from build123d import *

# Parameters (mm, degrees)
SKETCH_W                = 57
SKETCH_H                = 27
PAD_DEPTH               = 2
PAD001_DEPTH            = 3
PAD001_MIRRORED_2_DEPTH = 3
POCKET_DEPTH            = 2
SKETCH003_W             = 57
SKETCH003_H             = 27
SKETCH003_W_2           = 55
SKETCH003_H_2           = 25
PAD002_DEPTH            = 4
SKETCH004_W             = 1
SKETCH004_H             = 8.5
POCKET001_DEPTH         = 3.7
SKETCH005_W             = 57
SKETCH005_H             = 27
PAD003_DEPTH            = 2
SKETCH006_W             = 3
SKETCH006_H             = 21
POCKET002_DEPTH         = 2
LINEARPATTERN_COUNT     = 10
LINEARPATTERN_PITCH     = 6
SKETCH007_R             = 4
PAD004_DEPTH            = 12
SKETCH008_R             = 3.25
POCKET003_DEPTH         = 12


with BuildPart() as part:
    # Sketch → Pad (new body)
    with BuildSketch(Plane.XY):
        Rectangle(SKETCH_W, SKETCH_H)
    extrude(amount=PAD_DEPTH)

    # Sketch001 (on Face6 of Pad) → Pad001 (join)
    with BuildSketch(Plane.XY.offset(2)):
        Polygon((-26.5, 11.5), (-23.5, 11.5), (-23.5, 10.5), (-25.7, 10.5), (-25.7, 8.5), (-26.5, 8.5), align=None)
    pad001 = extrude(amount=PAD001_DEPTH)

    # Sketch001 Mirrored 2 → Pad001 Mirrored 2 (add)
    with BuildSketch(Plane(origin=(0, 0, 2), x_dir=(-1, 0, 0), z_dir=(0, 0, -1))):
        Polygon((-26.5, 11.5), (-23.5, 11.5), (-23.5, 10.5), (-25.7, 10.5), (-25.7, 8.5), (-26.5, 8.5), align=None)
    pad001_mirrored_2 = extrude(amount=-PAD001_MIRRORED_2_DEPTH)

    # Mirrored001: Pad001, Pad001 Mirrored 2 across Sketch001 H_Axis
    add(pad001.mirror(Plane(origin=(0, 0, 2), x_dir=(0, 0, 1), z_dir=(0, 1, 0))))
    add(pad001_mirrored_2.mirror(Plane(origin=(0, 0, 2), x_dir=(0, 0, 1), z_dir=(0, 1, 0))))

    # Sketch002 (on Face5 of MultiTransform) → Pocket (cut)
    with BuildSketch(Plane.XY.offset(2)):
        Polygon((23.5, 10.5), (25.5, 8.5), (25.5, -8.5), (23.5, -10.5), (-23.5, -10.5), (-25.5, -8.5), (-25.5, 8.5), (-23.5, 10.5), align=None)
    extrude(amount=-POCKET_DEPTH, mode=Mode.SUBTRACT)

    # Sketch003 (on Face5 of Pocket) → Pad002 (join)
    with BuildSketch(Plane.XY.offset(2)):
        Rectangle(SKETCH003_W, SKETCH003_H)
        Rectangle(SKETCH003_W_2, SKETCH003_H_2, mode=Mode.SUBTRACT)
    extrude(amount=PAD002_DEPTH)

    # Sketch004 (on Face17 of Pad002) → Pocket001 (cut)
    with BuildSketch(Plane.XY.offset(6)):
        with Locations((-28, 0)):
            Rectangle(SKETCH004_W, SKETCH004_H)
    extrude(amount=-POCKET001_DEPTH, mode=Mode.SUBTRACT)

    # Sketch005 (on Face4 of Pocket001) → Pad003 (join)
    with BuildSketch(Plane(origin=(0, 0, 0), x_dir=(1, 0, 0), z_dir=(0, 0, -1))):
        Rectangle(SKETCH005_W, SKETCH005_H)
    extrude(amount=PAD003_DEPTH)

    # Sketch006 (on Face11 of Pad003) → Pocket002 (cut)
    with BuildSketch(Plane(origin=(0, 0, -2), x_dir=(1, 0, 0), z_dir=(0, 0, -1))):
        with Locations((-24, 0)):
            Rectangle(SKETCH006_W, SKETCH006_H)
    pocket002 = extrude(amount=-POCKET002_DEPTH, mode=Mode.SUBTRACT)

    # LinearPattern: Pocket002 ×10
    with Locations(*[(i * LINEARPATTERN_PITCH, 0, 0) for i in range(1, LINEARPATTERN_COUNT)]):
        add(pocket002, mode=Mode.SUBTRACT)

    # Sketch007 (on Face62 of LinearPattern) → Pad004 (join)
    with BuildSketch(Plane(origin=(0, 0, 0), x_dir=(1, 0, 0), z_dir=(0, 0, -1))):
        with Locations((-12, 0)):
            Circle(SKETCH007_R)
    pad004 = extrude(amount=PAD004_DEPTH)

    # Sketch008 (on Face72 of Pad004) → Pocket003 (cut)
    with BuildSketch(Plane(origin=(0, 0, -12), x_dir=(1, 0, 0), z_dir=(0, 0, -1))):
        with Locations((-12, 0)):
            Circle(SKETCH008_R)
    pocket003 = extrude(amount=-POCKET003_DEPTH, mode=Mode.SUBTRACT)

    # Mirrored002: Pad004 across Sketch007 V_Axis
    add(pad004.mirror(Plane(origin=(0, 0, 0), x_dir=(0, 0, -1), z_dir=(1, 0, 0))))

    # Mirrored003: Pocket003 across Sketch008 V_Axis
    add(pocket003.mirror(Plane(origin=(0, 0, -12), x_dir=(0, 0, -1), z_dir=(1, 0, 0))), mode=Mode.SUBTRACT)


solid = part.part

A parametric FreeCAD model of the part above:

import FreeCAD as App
import Part
import Sketcher

V = App.Vector
Q = App.Units.Quantity


def add_polygon(sketch, points):
    """Adds a closed chain of lines whose ends are joined by coincident constraints."""
    first, n = sketch.GeometryCount, len(points)
    for a, b in zip(points, points[1:] + points[:1]):
        sketch.addGeometry(Part.LineSegment(App.Vector(*a, 0), App.Vector(*b, 0)), False)
    for i in range(n):
        sketch.addConstraint(Sketcher.Constraint("Coincident", first + i, 2, first + (i + 1) % n, 1))

doc = App.newDocument("Part")
body = doc.addObject("PartDesign::Body", "Body")

# Sketch on XY plane
sketch1 = doc.addObject("Sketcher::SketchObject", "Sketch")
body.addObject(sketch1)
sketch1.AttachmentSupport = (doc.XY_Plane, [""])
sketch1.MapMode = "FlatFace"
add_polygon(sketch1, [(-28, 14), (-28, -14), (28, -14), (28, 14)])  # lines 0-3
sketch1.addConstraint(Sketcher.Constraint("Vertical", 0))
sketch1.addConstraint(Sketcher.Constraint("Horizontal", 1))
sketch1.addConstraint(Sketcher.Constraint("Vertical", 2))
sketch1.addConstraint(Sketcher.Constraint("Horizontal", 3))
sketch1.addConstraint(Sketcher.Constraint("Symmetric", 0, 2, 2, 2, -1, 1))
sketch1.addConstraint(Sketcher.Constraint("DistanceX", 1, 1, 1, 2, Q("57 mm")))
sketch1.addConstraint(Sketcher.Constraint("DistanceY", 0, 2, 0, 1, Q("27 mm")))
pad1 = doc.addObject("PartDesign::Pad", "Pad")
body.addObject(pad1)
pad1.Profile = sketch1
pad1.Length = 2

# Sketch on XY plane
sketch2 = doc.addObject("Sketcher::SketchObject", "Sketch001")
body.addObject(sketch2)
sketch2.AttachmentSupport = (doc.XY_Plane, [""])
sketch2.MapMode = "FlatFace"
sketch2.AttachmentOffset = App.Placement(V(0, 0, 2), App.Rotation())
add_polygon(sketch2, [(-23.5, 11.5), (-26.5, 11.5), (-26.5, 8.5), (-25.7, 8.5), (-25.7, 10.5), (-23.5, 10.5)])  # lines 0-5
sketch2.addConstraint(Sketcher.Constraint("Horizontal", 0))
sketch2.addConstraint(Sketcher.Constraint("Vertical", 1))
sketch2.addConstraint(Sketcher.Constraint("Horizontal", 2))
sketch2.addConstraint(Sketcher.Constraint("Vertical", 3))
sketch2.addConstraint(Sketcher.Constraint("Horizontal", 4))
sketch2.addConstraint(Sketcher.Constraint("Vertical", 5))
sketch2.addConstraint(Sketcher.Constraint("Equal", 0, 1))
sketch2.addConstraint(Sketcher.Constraint("DistanceX", 0, 2, 0, 1, Q("3 mm")))
sketch2.addConstraint(Sketcher.Constraint("DistanceY", 3, 1, 3, 2, Q("2 mm")))
sketch2.addConstraint(Sketcher.Constraint("DistanceX", 2, 1, 2, 2, Q("0.8 mm")))
sketch2.addConstraint(Sketcher.Constraint("DistanceX", 0, 2, -1, 1, Q("26.5 mm")))
sketch2.addConstraint(Sketcher.Constraint("DistanceY", -1, 1, 0, 2, Q("11.5 mm")))
pad2 = doc.addObject("PartDesign::Pad", "Pad001")
body.addObject(pad2)
pad2.Profile = sketch2
pad2.Length = 3

# Sketch on XY plane
sketch3 = doc.addObject("Sketcher::SketchObject", "Sketch002")
body.addObject(sketch3)
sketch3.AttachmentSupport = (doc.XY_Plane, [""])
sketch3.MapMode = "FlatFace"
sketch3.AttachmentOffset = App.Placement(V(0, 0, 2), App.Rotation())
add_polygon(sketch3, [(23.5, 11.5), (26.5, 11.5), (26.5, 8.5), (25.7, 8.5), (25.7, 10.5), (23.5, 10.5)])  # lines 0-5
sketch3.addConstraint(Sketcher.Constraint("Horizontal", 0))
sketch3.addConstraint(Sketcher.Constraint("Vertical", 1))
sketch3.addConstraint(Sketcher.Constraint("Horizontal", 2))
sketch3.addConstraint(Sketcher.Constraint("Vertical", 3))
sketch3.addConstraint(Sketcher.Constraint("Horizontal", 4))
sketch3.addConstraint(Sketcher.Constraint("Vertical", 5))
sketch3.addConstraint(Sketcher.Constraint("Equal", 0, 1))
sketch3.addConstraint(Sketcher.Constraint("DistanceX", 0, 1, 0, 2, Q("3 mm")))
sketch3.addConstraint(Sketcher.Constraint("DistanceY", 3, 1, 3, 2, Q("2 mm")))
sketch3.addConstraint(Sketcher.Constraint("DistanceX", 2, 2, 2, 1, Q("0.8 mm")))
sketch3.addConstraint(Sketcher.Constraint("DistanceX", -1, 1, 0, 2, Q("26.5 mm")))
sketch3.addConstraint(Sketcher.Constraint("DistanceY", -1, 1, 0, 2, Q("11.5 mm")))
pad3 = doc.addObject("PartDesign::Pad", "Pad002")
body.addObject(pad3)
pad3.Profile = sketch3
pad3.Length = 3
doc.recompute()

mirrored = doc.addObject("PartDesign::Mirrored", "Mirrored")
body.addObject(mirrored)
mirrored.Originals = [pad2, pad3]
mirrored.MirrorPlane = (doc.XZ_Plane, [""])
body.Tip = mirrored

# Sketch on XY plane
sketch4 = doc.addObject("Sketcher::SketchObject", "Sketch003")
body.addObject(sketch4)
sketch4.AttachmentSupport = (doc.XY_Plane, [""])
sketch4.MapMode = "FlatFace"
sketch4.AttachmentOffset = App.Placement(V(0, 0, 2), App.Rotation())
add_polygon(sketch4, [(25.5, 8.5), (23.5, 10.5), (-23.5, 10.5), (-25.5, 8.5), (-25.5, -8.5), (-23.5, -10.5), (23.5, -10.5), (25.5, -8.5)])  # lines 0-7
sketch4.addConstraint(Sketcher.Constraint("Horizontal", 1))
sketch4.addConstraint(Sketcher.Constraint("Vertical", 3))
sketch4.addConstraint(Sketcher.Constraint("Horizontal", 5))
sketch4.addConstraint(Sketcher.Constraint("Vertical", 7))
sketch4.addConstraint(Sketcher.Constraint("Symmetric", 0, 2, 4, 2, -1, 1))
sketch4.addConstraint(Sketcher.Constraint("Symmetric", 2, 2, 6, 2, -1, 1))
sketch4.addConstraint(Sketcher.Constraint("Perpendicular", 0, 2))
sketch4.addConstraint(Sketcher.Constraint("Perpendicular", 2, 4))
sketch4.addConstraint(Sketcher.Constraint("Perpendicular", 4, 6))
sketch4.addConstraint(Sketcher.Constraint("Horizontal", 3, 2, 6, 2))
sketch4.addConstraint(Sketcher.Constraint("Vertical", 1, 2, 4, 2))
sketch4.addConstraint(Sketcher.Constraint("DistanceX", 1, 2, 1, 1, Q("47 mm")))
sketch4.addConstraint(Sketcher.Constraint("DistanceY", 3, 2, 3, 1, Q("17 mm")))
sketch4.addConstraint(Sketcher.Constraint("DistanceX", 2, 2, 1, 2, Q("2 mm")))
pocket1 = doc.addObject("PartDesign::Pocket", "Pocket")
body.addObject(pocket1)
pocket1.Profile = sketch4
pocket1.Length = 2

# Sketch on XY plane
sketch5 = doc.addObject("Sketcher::SketchObject", "Sketch004")
body.addObject(sketch5)
sketch5.AttachmentSupport = (doc.XY_Plane, [""])
sketch5.MapMode = "FlatFace"
sketch5.AttachmentOffset = App.Placement(V(0, 0, 2), App.Rotation())
add_polygon(sketch5, [(-28, 14), (-28, -14), (28, -14), (28, 14)])  # lines 0-3
add_polygon(sketch5, [(28, -12), (-28, -12), (-28, 12), (28, 12)])  # lines 4-7
sketch5.addConstraint(Sketcher.Constraint("Vertical", 0))
sketch5.addConstraint(Sketcher.Constraint("Horizontal", 1))
sketch5.addConstraint(Sketcher.Constraint("Vertical", 2))
sketch5.addConstraint(Sketcher.Constraint("Horizontal", 3))
sketch5.addConstraint(Sketcher.Constraint("Horizontal", 4))
sketch5.addConstraint(Sketcher.Constraint("Vertical", 5))
sketch5.addConstraint(Sketcher.Constraint("Horizontal", 6))
sketch5.addConstraint(Sketcher.Constraint("Vertical", 7))
sketch5.addConstraint(Sketcher.Constraint("Symmetric", 0, 2, 2, 2, -1, 1))
sketch5.addConstraint(Sketcher.Constraint("Symmetric", 4, 2, 6, 2, -1, 1))
sketch5.addConstraint(Sketcher.Constraint("DistanceX", 1, 1, 1, 2, Q("57 mm")))
sketch5.addConstraint(Sketcher.Constraint("DistanceX", 4, 2, 4, 1, Q("55 mm")))
sketch5.addConstraint(Sketcher.Constraint("DistanceY", 0, 2, 0, 1, Q("27 mm")))
sketch5.addConstraint(Sketcher.Constraint("DistanceY", 5, 1, 5, 2, Q("25 mm")))
pad4 = doc.addObject("PartDesign::Pad", "Pad003")
body.addObject(pad4)
pad4.Profile = sketch5
pad4.Length = 4

# Sketch on XY plane
sketch6 = doc.addObject("Sketcher::SketchObject", "Sketch005")
body.addObject(sketch6)
sketch6.AttachmentSupport = (doc.XY_Plane, [""])
sketch6.MapMode = "FlatFace"
sketch6.AttachmentOffset = App.Placement(V(0, 0, 6), App.Rotation())
add_polygon(sketch6, [(-28.5, 4.2), (-28.5, -4.2), (-27.5, -4.2), (-27.5, 4.2)])  # lines 0-3
sketch6.addConstraint(Sketcher.Constraint("Vertical", 0))
sketch6.addConstraint(Sketcher.Constraint("Horizontal", 1))
sketch6.addConstraint(Sketcher.Constraint("Vertical", 2))
sketch6.addConstraint(Sketcher.Constraint("Horizontal", 3))
sketch6.addConstraint(Sketcher.Constraint("DistanceX", 1, 1, 1, 2, Q("1 mm")))
sketch6.addConstraint(Sketcher.Constraint("DistanceY", 0, 2, 0, 1, Q("8.5 mm")))
sketch6.addConstraint(Sketcher.Constraint("DistanceX", 0, 2, -1, 1, Q("28.5 mm")))
sketch6.addConstraint(Sketcher.Constraint("DistanceY", 0, 2, -1, 1, Q("4.25 mm")))
pocket2 = doc.addObject("PartDesign::Pocket", "Pocket001")
body.addObject(pocket2)
pocket2.Profile = sketch6
pocket2.Length = 3.7

# Sketch on XY plane
sketch7 = doc.addObject("Sketcher::SketchObject", "Sketch006")
body.addObject(sketch7)
sketch7.AttachmentSupport = (doc.XY_Plane, [""])
sketch7.MapMode = "FlatFace"
add_polygon(sketch7, [(-28, -14), (-28, 14), (28, 14), (28, -14)])  # lines 0-3
sketch7.addConstraint(Sketcher.Constraint("Vertical", 0))
sketch7.addConstraint(Sketcher.Constraint("Horizontal", 1))
sketch7.addConstraint(Sketcher.Constraint("Vertical", 2))
sketch7.addConstraint(Sketcher.Constraint("Horizontal", 3))
sketch7.addConstraint(Sketcher.Constraint("Symmetric", 0, 2, 2, 2, -1, 1))
sketch7.addConstraint(Sketcher.Constraint("DistanceX", 1, 1, 1, 2, Q("57 mm")))
sketch7.addConstraint(Sketcher.Constraint("DistanceY", 0, 1, 0, 2, Q("27 mm")))
pad5 = doc.addObject("PartDesign::Pad", "Pad004")
body.addObject(pad5)
pad5.Profile = sketch7
pad5.Length = 2
pad5.Reversed = True

# Sketch on XY plane
sketch8 = doc.addObject("Sketcher::SketchObject", "Sketch007")
body.addObject(sketch8)
sketch8.AttachmentSupport = (doc.XY_Plane, [""])
sketch8.MapMode = "FlatFace"
sketch8.AttachmentOffset = App.Placement(V(0, 0, -2), App.Rotation())
add_polygon(sketch8, [(-25.5, -10.5), (-25.5, 10.5), (-22.5, 10.5), (-22.5, -10.5)])  # lines 0-3
sketch8.addConstraint(Sketcher.Constraint("Vertical", 0))
sketch8.addConstraint(Sketcher.Constraint("Horizontal", 1))
sketch8.addConstraint(Sketcher.Constraint("Vertical", 2))
sketch8.addConstraint(Sketcher.Constraint("Horizontal", 3))
sketch8.addConstraint(Sketcher.Constraint("DistanceX", 1, 1, 1, 2, Q("3 mm")))
sketch8.addConstraint(Sketcher.Constraint("DistanceY", 0, 1, 0, 2, Q("21 mm")))
sketch8.addConstraint(Sketcher.Constraint("DistanceX", 0, 2, -1, 1, Q("25.5 mm")))
sketch8.addConstraint(Sketcher.Constraint("DistanceY", -1, 1, 0, 2, Q("10.5 mm")))
pocket3 = doc.addObject("PartDesign::Pocket", "Pocket002")
body.addObject(pocket3)
pocket3.Profile = sketch8
pocket3.Length = 2
pocket3.Reversed = True
doc.recompute()

linearpattern = doc.addObject("PartDesign::LinearPattern", "LinearPattern")
body.addObject(linearpattern)
linearpattern.Originals = [pocket3]
linearpattern.Direction = (doc.X_Axis, [""])
linearpattern.Mode = "offset"
linearpattern.Offset = 6
linearpattern.Occurrences = 10
body.Tip = linearpattern

# Sketch on XY plane
sketch9 = doc.addObject("Sketcher::SketchObject", "Sketch008")
body.addObject(sketch9)
sketch9.AttachmentSupport = (doc.XY_Plane, [""])
sketch9.MapMode = "FlatFace"
sketch9.addGeometry(Part.Circle(V(-12, 0, 0), V(0, 0, 1), 4), False)
sketch9.addConstraint(Sketcher.Constraint("PointOnObject", 0, 3, -1))
sketch9.addConstraint(Sketcher.Constraint("Diameter", 0, Q("8 mm")))
sketch9.addConstraint(Sketcher.Constraint("DistanceX", 0, 3, -1, 1, Q("12 mm")))
pad6 = doc.addObject("PartDesign::Pad", "Pad005")
body.addObject(pad6)
pad6.Profile = sketch9
pad6.Length = 12
pad6.Reversed = True

# Sketch on XY plane
sketch10 = doc.addObject("Sketcher::SketchObject", "Sketch009")
body.addObject(sketch10)
sketch10.AttachmentSupport = (doc.XY_Plane, [""])
sketch10.MapMode = "FlatFace"
sketch10.AttachmentOffset = App.Placement(V(0, 0, -12), App.Rotation())
sketch10.addGeometry(Part.Circle(V(-12, 0, 0), V(0, 0, 1), 3.2), False)
sketch10.addConstraint(Sketcher.Constraint("PointOnObject", 0, 3, -1))
sketch10.addConstraint(Sketcher.Constraint("Diameter", 0, Q("6.5 mm")))
sketch10.addConstraint(Sketcher.Constraint("DistanceX", 0, 3, -1, 1, Q("12 mm")))
pocket4 = doc.addObject("PartDesign::Pocket", "Pocket003")
body.addObject(pocket4)
pocket4.Profile = sketch10
pocket4.Length = 12
pocket4.Reversed = True
doc.recompute()

mirrored2 = doc.addObject("PartDesign::Mirrored", "Mirrored001")
body.addObject(mirrored2)
mirrored2.Originals = [pad6]
mirrored2.MirrorPlane = (doc.YZ_Plane, [""])
body.Tip = mirrored2
doc.recompute()

mirrored3 = doc.addObject("PartDesign::Mirrored", "Mirrored002")
body.addObject(mirrored3)
mirrored3.Originals = [pocket4]
mirrored3.MirrorPlane = (doc.YZ_Plane, [""])
body.Tip = mirrored3

doc.recompute()
